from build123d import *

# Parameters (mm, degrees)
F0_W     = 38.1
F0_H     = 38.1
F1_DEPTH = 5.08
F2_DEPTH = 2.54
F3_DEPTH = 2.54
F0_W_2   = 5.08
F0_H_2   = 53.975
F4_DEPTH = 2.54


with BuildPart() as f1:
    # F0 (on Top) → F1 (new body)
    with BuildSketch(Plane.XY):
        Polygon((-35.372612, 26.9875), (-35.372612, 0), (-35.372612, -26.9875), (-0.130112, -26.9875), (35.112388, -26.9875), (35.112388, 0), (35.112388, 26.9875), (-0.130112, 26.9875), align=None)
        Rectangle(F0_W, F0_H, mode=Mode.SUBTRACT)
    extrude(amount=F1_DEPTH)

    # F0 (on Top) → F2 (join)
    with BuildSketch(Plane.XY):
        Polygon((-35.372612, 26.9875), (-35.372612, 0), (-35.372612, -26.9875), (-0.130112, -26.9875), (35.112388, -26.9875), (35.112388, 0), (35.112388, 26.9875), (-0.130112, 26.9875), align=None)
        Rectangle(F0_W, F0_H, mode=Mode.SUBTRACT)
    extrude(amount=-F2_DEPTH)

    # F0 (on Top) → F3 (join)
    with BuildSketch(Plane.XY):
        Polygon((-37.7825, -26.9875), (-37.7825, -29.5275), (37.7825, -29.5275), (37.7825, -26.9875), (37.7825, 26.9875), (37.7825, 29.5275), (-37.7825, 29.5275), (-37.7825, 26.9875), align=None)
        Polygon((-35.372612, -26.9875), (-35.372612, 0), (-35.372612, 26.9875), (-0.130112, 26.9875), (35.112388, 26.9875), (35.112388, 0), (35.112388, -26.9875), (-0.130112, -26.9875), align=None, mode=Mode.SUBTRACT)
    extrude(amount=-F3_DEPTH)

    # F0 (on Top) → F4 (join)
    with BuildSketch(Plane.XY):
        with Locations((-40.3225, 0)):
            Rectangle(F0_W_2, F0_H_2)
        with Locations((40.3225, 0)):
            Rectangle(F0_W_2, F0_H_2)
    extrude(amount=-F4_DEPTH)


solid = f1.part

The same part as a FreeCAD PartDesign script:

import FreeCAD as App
import Part
import Sketcher
Q = App.Units.Quantity


def add_polygon(sketch, points):
    """Adds a closed chain of lines whose ends are joined by coincident constraints."""
    first, n = sketch.GeometryCount, len(points)
    for a, b in zip(points, points[1:] + points[:1]):
        sketch.addGeometry(Part.LineSegment(App.Vector(*a, 0), App.Vector(*b, 0)), False)
    for i in range(n):
        sketch.addConstraint(Sketcher.Constraint("Coincident", first + i, 2, first + (i + 1) % n, 1))

doc = App.newDocument("Part")
body = doc.addObject("PartDesign::Body", "Body")

# Sketch on XY plane
sketch1 = body.newObject("Sketcher::SketchObject", "Sketch")
sketch1.AttachmentSupport = (doc.getObject("XY_Plane"), [""])
sketch1.MapMode = "FlatFace"
add_polygon(sketch1, [(-35.372612, 26.9875), (-35.372612, -26.9875), (35.112388, -26.9875), (35.112388, 26.9875)])  # lines 0-3
add_polygon(sketch1, [(19.05, -19.05), (-19.05, -19.05), (-19.05, 19.05), (19.05, 19.05)])  # lines 4-7
sketch1.addConstraint(Sketcher.Constraint("Vertical", 0))
sketch1.addConstraint(Sketcher.Constraint("Horizontal", 1))
sketch1.addConstraint(Sketcher.Constraint("Vertical", 2))
sketch1.addConstraint(Sketcher.Constraint("Horizontal", 3))
sketch1.addConstraint(Sketcher.Constraint("Horizontal", 4))
sketch1.addConstraint(Sketcher.Constraint("Vertical", 5))
sketch1.addConstraint(Sketcher.Constraint("Horizontal", 6))
sketch1.addConstraint(Sketcher.Constraint("Vertical", 7))
sketch1.addConstraint(Sketcher.Constraint("Symmetric", 4, 2, 6, 2, -1, 1))
sketch1.addConstraint(Sketcher.Constraint("Equal", 6, 5))
sketch1.addConstraint(Sketcher.Constraint("DistanceX", 4, 2, 4, 1, Q("1.5 in")))
sketch1.addConstraint(Sketcher.Constraint("DistanceX", 1, 1, 1, 2, Q("2.775 in")))
sketch1.addConstraint(Sketcher.Constraint("DistanceY", 0, 2, 0, 1, Q("2.125 in")))
sketch1.addConstraint(Sketcher.Constraint("DistanceY", 0, 2, -1, 1, Q("1.0625 in")))
sketch1.addConstraint(Sketcher.Constraint("DistanceX", 0, 2, -1, 1, Q("35.372612 mm")))
pad1 = body.newObject("PartDesign::Pad", "Pad")
pad1.Profile = sketch1
pad1.Length = Q("0.2 in")

# Sketch on XY plane
sketch2 = body.newObject("Sketcher::SketchObject", "Sketch001")
sketch2.AttachmentSupport = (doc.getObject("XY_Plane"), [""])
sketch2.MapMode = "FlatFace"
add_polygon(sketch2, [(-35.372612, 26.9875), (-35.372612, -26.9875), (35.112388, -26.9875), (35.112388, 26.9875)])  # lines 0-3
add_polygon(sketch2, [(19.05, -19.05), (-19.05, -19.05), (-19.05, 19.05), (19.05, 19.05)])  # lines 4-7
sketch2.addConstraint(Sketcher.Constraint("Vertical", 0))
sketch2.addConstraint(Sketcher.Constraint("Horizontal", 1))
sketch2.addConstraint(Sketcher.Constraint("Vertical", 2))
sketch2.addConstraint(Sketcher.Constraint("Horizontal", 3))
sketch2.addConstraint(Sketcher.Constraint("Horizontal", 4))
sketch2.addConstraint(Sketcher.Constraint("Vertical", 5))
sketch2.addConstraint(Sketcher.Constraint("Horizontal", 6))
sketch2.addConstraint(Sketcher.Constraint("Vertical", 7))
sketch2.addConstraint(Sketcher.Constraint("Symmetric", 4, 2, 6, 2, -1, 1))
sketch2.addConstraint(Sketcher.Constraint("Equal", 6, 5))
sketch2.addConstraint(Sketcher.Constraint("DistanceX", 4, 2, 4, 1, Q("1.5 in")))
sketch2.addConstraint(Sketcher.Constraint("DistanceX", 1, 1, 1, 2, Q("2.775 in")))
sketch2.addConstraint(Sketcher.Constraint("DistanceY", 0, 2, 0, 1, Q("2.125 in")))
sketch2.addConstraint(Sketcher.Constraint("DistanceY", 0, 2, -1, 1, Q("1.0625 in")))
sketch2.addConstraint(Sketcher.Constraint("DistanceX", 0, 2, -1, 1, Q("35.372612 mm")))
pad2 = body.newObject("PartDesign::Pad", "Pad001")
pad2.Profile = sketch2
pad2.Length = Q("0.1 in")
pad2.Reversed = True

# Sketch on XY plane
sketch3 = body.newObject("Sketcher::SketchObject", "Sketch002")
sketch3.AttachmentSupport = (doc.getObject("XY_Plane"), [""])
sketch3.MapMode = "FlatFace"
add_polygon(sketch3, [(-37.7825, -29.5275), (37.7825, -29.5275), (37.7825, 29.5275), (-37.7825, 29.5275)])  # lines 0-3
add_polygon(sketch3, [(35.112388, -26.9875), (-35.372612, -26.9875), (-35.372612, 26.9875), (35.112388, 26.9875)])  # lines 4-7
sketch3.addConstraint(Sketcher.Constraint("Horizontal", 0))
sketch3.addConstraint(Sketcher.Constraint("Vertical", 1))
sketch3.addConstraint(Sketcher.Constraint("Horizontal", 2))
sketch3.addConstraint(Sketcher.Constraint("Vertical", 3))
sketch3.addConstraint(Sketcher.Constraint("Horizontal", 4))
sketch3.addConstraint(Sketcher.Constraint("Vertical", 5))
sketch3.addConstraint(Sketcher.Constraint("Horizontal", 6))
sketch3.addConstraint(Sketcher.Constraint("Vertical", 7))
sketch3.addConstraint(Sketcher.Constraint("Symmetric", 0, 2, 2, 2, -1, 1))
sketch3.addConstraint(Sketcher.Constraint("DistanceY", 3, 2, 4, 2, Q("0.1 in")))
sketch3.addConstraint(Sketcher.Constraint("DistanceY", 5, 2, 2, 2, Q("0.1 in")))
sketch3.addConstraint(Sketcher.Constraint("DistanceX", 0, 1, 0, 2, Q("2.975 in")))
sketch3.addConstraint(Sketcher.Constraint("DistanceX", 4, 2, 4, 1, Q("2.775 in")))
sketch3.addConstraint(Sketcher.Constraint("DistanceY", 1, 1, 1, 2, Q("2.325 in")))
sketch3.addConstraint(Sketcher.Constraint("DistanceX", 4, 2, -1, 1, Q("35.372612 mm")))
pad3 = body.newObject("PartDesign::Pad", "Pad002")
pad3.Profile = sketch3
pad3.Length = Q("0.1 in")
pad3.Reversed = True

# Sketch on XY plane
sketch4 = body.newObject("Sketcher::SketchObject", "Sketch003")
sketch4.AttachmentSupport = (doc.getObject("XY_Plane"), [""])
sketch4.MapMode = "FlatFace"
add_polygon(sketch4, [(-42.8625, 26.9875), (-42.8625, -26.9875), (-37.7825, -26.9875), (-37.7825, 26.9875)])  # lines 0-3
add_polygon(sketch4, [(37.7825, 26.9875), (37.7825, -26.9875), (42.8625, -26.9875), (42.8625, 26.9875)])  # lines 4-7
sketch4.addConstraint(Sketcher.Constraint("Vertical", 0))
sketch4.addConstraint(Sketcher.Constraint("Horizontal", 1))
sketch4.addConstraint(Sketcher.Constraint("Vertical", 2))
sketch4.addConstraint(Sketcher.Constraint("Horizontal", 3))
sketch4.addConstraint(Sketcher.Constraint("Vertical", 4))
sketch4.addConstraint(Sketcher.Constraint("Horizontal", 5))
sketch4.addConstraint(Sketcher.Constraint("Vertical", 6))
sketch4.addConstraint(Sketcher.Constraint("Horizontal", 7))
sketch4.addConstraint(Sketcher.Constraint("Symmetric", 2, 2, 4, 2, -1, 1))
sketch4.addConstraint(Sketcher.Constraint("Symmetric", 0, 2, 6, 2, -1, 1))
sketch4.addConstraint(Sketcher.Constraint("Horizontal", 1, 2, 4, 2))
sketch4.addConstraint(Sketcher.Constraint("DistanceX", 1, 1, 1, 2, Q("0.2 in")))
sketch4.addConstraint(Sketcher.Constraint("DistanceY", 0, 2, 0, 1, Q("2.125 in")))
sketch4.addConstraint(Sketcher.Constraint("DistanceX", 0, 2, -1, 1, Q("1.6875 in")))
pad4 = body.newObject("PartDesign::Pad", "Pad003")
pad4.Profile = sketch4
pad4.Length = Q("0.1 in")
pad4.Reversed = True

doc.recompute()
